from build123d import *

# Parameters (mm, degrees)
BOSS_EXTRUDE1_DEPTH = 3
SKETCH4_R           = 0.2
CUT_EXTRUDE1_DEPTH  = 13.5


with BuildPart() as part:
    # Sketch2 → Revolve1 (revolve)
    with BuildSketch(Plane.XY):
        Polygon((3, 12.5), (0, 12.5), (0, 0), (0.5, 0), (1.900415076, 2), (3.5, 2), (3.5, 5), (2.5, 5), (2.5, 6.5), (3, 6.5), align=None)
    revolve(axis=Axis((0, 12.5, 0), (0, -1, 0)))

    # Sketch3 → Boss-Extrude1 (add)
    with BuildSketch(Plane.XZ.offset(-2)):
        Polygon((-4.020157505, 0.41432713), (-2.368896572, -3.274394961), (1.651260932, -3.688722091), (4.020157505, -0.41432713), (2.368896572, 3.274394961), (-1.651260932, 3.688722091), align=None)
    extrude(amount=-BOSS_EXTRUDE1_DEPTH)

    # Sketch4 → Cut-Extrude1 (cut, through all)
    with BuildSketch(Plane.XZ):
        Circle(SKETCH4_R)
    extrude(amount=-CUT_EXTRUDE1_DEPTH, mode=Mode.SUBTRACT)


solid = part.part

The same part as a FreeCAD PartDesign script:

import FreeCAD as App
import Part
import Sketcher

V = App.Vector
Q = App.Units.Quantity

doc = App.newDocument("Part")
params = doc.addObject("Spreadsheet::Sheet", "Params")
for row, (alias, value) in enumerate([
    ("sketch1_width", "3 mm"),
    ("sketch1_width2", "1 mm"),
    ("sketch1_height", "6 mm"),
    ("sketch1_width3", "0.5 mm"),
    ("sketch1_height2", "12.5 mm"),
    ("revolution_angle", "360 deg"),
    ("pad1_length", "3 mm"),
    ("sketch3_diameter", "0.4 mm"),
], start=1):
    params.set(f"A{row}", alias)
    params.set(f"B{row}", "=" + value)
    params.setAlias(f"B{row}", alias)

body = doc.addObject("PartDesign::Body", "Body")

# Sketch on XY plane
sketch1 = body.newObject("Sketcher::SketchObject", "Sketch")
sketch1.AttachmentSupport = (doc.getObject("XY_Plane"), [""])
sketch1.MapMode = "FlatFace"
sketch1.addGeometry(Part.LineSegment(V(3, 12.5, 0), V(0, 12.5, 0)), False)
sketch1.addGeometry(Part.LineSegment(V(0, 12.5, 0), V(0, 0, 0)), False)
sketch1.addGeometry(Part.LineSegment(V(0, 0, 0), V(0.5, 0, 0)), False)
sketch1.addGeometry(Part.LineSegment(V(0.5, 0, 0), V(1.900415, 2, 0)), False)
sketch1.addGeometry(Part.LineSegment(V(1.900415, 2, 0), V(3.5, 2, 0)), False)
sketch1.addGeometry(Part.LineSegment(V(3.5, 2, 0), V(3.5, 5, 0)), False)
sketch1.addGeometry(Part.LineSegment(V(3.5, 5, 0), V(2.5, 5, 0)), False)
sketch1.addGeometry(Part.LineSegment(V(2.5, 5, 0), V(2.5, 6.5, 0)), False)
sketch1.addGeometry(Part.LineSegment(V(2.5, 6.5, 0), V(3, 6.5, 0)), False)
sketch1.addGeometry(Part.LineSegment(V(3, 6.5, 0), V(3, 12.5, 0)), False)
sketch1.addConstraint(Sketcher.Constraint("Coincident", 0, 2, 1, 1))
sketch1.addConstraint(Sketcher.Constraint("Coincident", 1, 2, 2, 1))
sketch1.addConstraint(Sketcher.Constraint("Coincident", 2, 2, 3, 1))
sketch1.addConstraint(Sketcher.Constraint("Coincident", 3, 2, 4, 1))
sketch1.addConstraint(Sketcher.Constraint("Coincident", 4, 2, 5, 1))
sketch1.addConstraint(Sketcher.Constraint("Coincident", 5, 2, 6, 1))
sketch1.addConstraint(Sketcher.Constraint("Coincident", 6, 2, 7, 1))
sketch1.addConstraint(Sketcher.Constraint("Coincident", 7, 2, 8, 1))
sketch1.addConstraint(Sketcher.Constraint("Coincident", 8, 2, 9, 1))
sketch1.addConstraint(Sketcher.Constraint("Coincident", 9, 2, 0, 1))
sketch1.addConstraint(Sketcher.Constraint("Horizontal", 0))
sketch1.addConstraint(Sketcher.Constraint("Vertical", 1))
sketch1.addConstraint(Sketcher.Constraint("Horizontal", 2))
sketch1.addConstraint(Sketcher.Constraint("Horizontal", 4))
sketch1.addConstraint(Sketcher.Constraint("Vertical", 5))
sketch1.addConstraint(Sketcher.Constraint("Horizontal", 6))
sketch1.addConstraint(Sketcher.Constraint("Vertical", 7))
sketch1.addConstraint(Sketcher.Constraint("Horizontal", 8))
sketch1.addConstraint(Sketcher.Constraint("Vertical", 9))
sketch1.addConstraint(Sketcher.Constraint("Coincident", 1, 2, -1, 1))
sketch1.addConstraint(Sketcher.Constraint("Equal", 2, 8))
sketch1.addConstraint(Sketcher.Constraint("Equal", 0, 5))
sketch1.addConstraint(Sketcher.Constraint("DistanceX", 0, 2, 0, 1, Q("3 mm")))
sketch1.addConstraint(Sketcher.Constraint("DistanceX", 6, 2, 6, 1, Q("1 mm")))
sketch1.addConstraint(Sketcher.Constraint("DistanceY", 9, 1, 9, 2, Q("6 mm")))
sketch1.addConstraint(Sketcher.Constraint("Angle", 3, Q("55 deg")))
sketch1.addConstraint(Sketcher.Constraint("DistanceX", 2, 1, 2, 2, Q("0.5 mm")))
sketch1.addConstraint(Sketcher.Constraint("DistanceY", 1, 2, 1, 1, Q("12.5 mm")))
sketch1.addConstraint(Sketcher.Constraint("DistanceY", 7, 1, 7, 2, Q("1.5 mm")))
sketch1.setExpression("Constraints[22]", "Params.sketch1_width")
sketch1.setExpression("Constraints[23]", "Params.sketch1_width2")
sketch1.setExpression("Constraints[24]", "Params.sketch1_height")
sketch1.setExpression("Constraints[26]", "Params.sketch1_width3")
sketch1.setExpression("Constraints[27]", "Params.sketch1_height2")
revolution = body.newObject("PartDesign::Revolution", "Revolution")
revolution.Profile = sketch1
revolution.ReferenceAxis = (sketch1, ["V_Axis"])
revolution.setExpression("Angle", "Params.revolution_angle")

# Sketch on XZ plane
sketch2 = body.newObject("Sketcher::SketchObject", "Sketch001")
sketch2.AttachmentSupport = (doc.getObject("XZ_Plane"), [""])
sketch2.MapMode = "FlatFace"
sketch2.AttachmentOffset = App.Placement(V(0, 0, -2), App.Rotation())
sketch2.addGeometry(Part.LineSegment(V(-4.020158, 0.414327, 0), V(-2.368897, -3.274395, 0)), False)
sketch2.addGeometry(Part.LineSegment(V(-2.368897, -3.274395, 0), V(1.651261, -3.688722, 0)), False)
sketch2.addGeometry(Part.LineSegment(V(1.651261, -3.688722, 0), V(4.020158, -0.414327, 0)), False)
sketch2.addGeometry(Part.LineSegment(V(4.020158, -0.414327, 0), V(2.368897, 3.274395, 0)), False)
sketch2.addGeometry(Part.LineSegment(V(2.368897, 3.274395, 0), V(-1.651261, 3.688722, 0)), False)
sketch2.addGeometry(Part.LineSegment(V(-1.651261, 3.688722, 0), V(-4.020158, 0.414327, 0)), False)
sketch2.addConstraint(Sketcher.Constraint("Coincident", 0, 2, 1, 1))
sketch2.addConstraint(Sketcher.Constraint("Coincident", 1, 2, 2, 1))
sketch2.addConstraint(Sketcher.Constraint("Coincident", 2, 2, 3, 1))
sketch2.addConstraint(Sketcher.Constraint("Coincident", 3, 2, 4, 1))
sketch2.addConstraint(Sketcher.Constraint("Coincident", 4, 2, 5, 1))
sketch2.addConstraint(Sketcher.Constraint("Coincident", 5, 2, 0, 1))
sketch2.addConstraint(Sketcher.Constraint("Symmetric", 0, 2, 3, 2, -1, 1))
sketch2.addConstraint(Sketcher.Constraint("Symmetric", 1, 2, 4, 2, -1, 1))
sketch2.addConstraint(Sketcher.Constraint("Symmetric", 2, 2, 5, 2, -1, 1))
sketch2.addConstraint(Sketcher.Constraint("Equal", 0, 1))
sketch2.addConstraint(Sketcher.Constraint("Equal", 1, 2))
sketch2.addConstraint(Sketcher.Constraint("Distance", 0, Q("4.041452 mm")))
sketch2.addConstraint(Sketcher.Constraint("DistanceX", -1, 1, 1, 2, Q("1.651261 mm")))
sketch2.addConstraint(Sketcher.Constraint("DistanceX", 3, 2, 2, 2, Q("1.651261 mm")))
sketch2.addConstraint(Sketcher.Constraint("DistanceY", 0, 2, 3, 2, Q("6.54879 mm")))
pad1 = body.newObject("PartDesign::Pad", "Pad")
pad1.Profile = sketch2
pad1.setExpression("Length", "Params.pad1_length")
pad1.Reversed = True

# Sketch on XZ plane
sketch3 = body.newObject("Sketcher::SketchObject", "Sketch002")
sketch3.AttachmentSupport = (doc.getObject("XZ_Plane"), [""])
sketch3.MapMode = "FlatFace"
sketch3.addGeometry(Part.Circle(V(0, 0, 0), V(0, 0, 1), 0.2), False)
sketch3.addConstraint(Sketcher.Constraint("Coincident", 0, 3, -1, 1))
sketch3.addConstraint(Sketcher.Constraint("Diameter", 0, Q("0.4 mm")))
sketch3.setExpression("Constraints[1]", "Params.sketch3_diameter")
pocket1 = body.newObject("PartDesign::Pocket", "Pocket")
pocket1.Profile = sketch3
pocket1.Type = "ThroughAll"

doc.recompute()
